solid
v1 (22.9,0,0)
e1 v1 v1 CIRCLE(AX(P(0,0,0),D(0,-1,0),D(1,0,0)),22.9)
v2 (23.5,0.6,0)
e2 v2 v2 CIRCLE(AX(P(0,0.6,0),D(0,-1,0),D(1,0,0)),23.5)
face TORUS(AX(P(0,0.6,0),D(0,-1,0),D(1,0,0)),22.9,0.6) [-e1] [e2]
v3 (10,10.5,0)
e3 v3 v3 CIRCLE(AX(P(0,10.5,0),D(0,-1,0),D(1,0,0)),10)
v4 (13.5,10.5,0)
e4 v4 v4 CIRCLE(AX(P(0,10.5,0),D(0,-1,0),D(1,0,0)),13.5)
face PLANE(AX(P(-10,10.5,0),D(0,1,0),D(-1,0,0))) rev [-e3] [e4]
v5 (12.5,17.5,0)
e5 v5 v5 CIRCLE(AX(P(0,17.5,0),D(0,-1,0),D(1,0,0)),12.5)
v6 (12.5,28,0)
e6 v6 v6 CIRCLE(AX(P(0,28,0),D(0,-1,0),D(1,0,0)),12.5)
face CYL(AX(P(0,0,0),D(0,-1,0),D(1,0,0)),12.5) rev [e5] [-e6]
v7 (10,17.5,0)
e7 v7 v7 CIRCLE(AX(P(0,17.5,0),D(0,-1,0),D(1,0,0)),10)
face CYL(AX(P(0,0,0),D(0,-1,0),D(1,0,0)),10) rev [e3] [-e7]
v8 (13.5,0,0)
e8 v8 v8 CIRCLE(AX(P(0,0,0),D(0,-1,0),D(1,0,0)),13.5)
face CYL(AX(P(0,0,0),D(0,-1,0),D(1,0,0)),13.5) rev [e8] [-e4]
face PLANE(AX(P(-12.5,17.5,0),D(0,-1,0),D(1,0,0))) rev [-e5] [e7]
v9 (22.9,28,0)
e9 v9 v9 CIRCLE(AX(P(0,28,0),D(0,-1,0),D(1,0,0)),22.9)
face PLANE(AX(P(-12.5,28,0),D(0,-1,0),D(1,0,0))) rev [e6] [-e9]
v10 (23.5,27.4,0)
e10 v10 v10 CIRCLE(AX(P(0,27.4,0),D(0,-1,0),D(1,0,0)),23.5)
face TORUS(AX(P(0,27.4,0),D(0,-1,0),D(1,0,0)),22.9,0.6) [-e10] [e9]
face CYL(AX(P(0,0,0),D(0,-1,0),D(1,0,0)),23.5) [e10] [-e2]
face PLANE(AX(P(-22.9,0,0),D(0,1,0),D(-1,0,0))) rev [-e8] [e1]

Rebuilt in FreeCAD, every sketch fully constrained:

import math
import FreeCAD as App
import Part
import Sketcher

V = App.Vector

doc = App.newDocument("Part")
body = doc.addObject("PartDesign::Body", "Body")

sketch1 = doc.addObject("Sketcher::SketchObject", "Sketch")
body.addObject(sketch1)
sketch1.AttachmentSupport = (doc.XY_Plane, [""])
sketch1.MapMode = "FlatFace"
sketch1.addGeometry([
    Part.LineSegment(V(-12.5, 28, 0), V(-22.9, 28, 0)),
    Part.ArcOfCircle(Part.Circle(V(-22.9, 27.4, 0), V(0, 0, 1), 0.6), math.radians(90), math.radians(180)),
    Part.LineSegment(V(-23.5, 27.4, 0), V(-23.5, 0.6, 0)),
    Part.ArcOfCircle(Part.Circle(V(-22.9, 0.6, 0), V(0, 0, 1), 0.6), math.radians(180), math.radians(270)),
    Part.LineSegment(V(-22.9, 0, 0), V(-13.5, 0, 0)),
    Part.LineSegment(V(-13.5, 0, 0), V(-13.5, 10.5, 0)),
    Part.LineSegment(V(-13.5, 10.5, 0), V(-10, 10.5, 0)),
    Part.LineSegment(V(-10, 10.5, 0), V(-10, 17.5, 0)),
    Part.LineSegment(V(-10, 17.5, 0), V(-12.5, 17.5, 0)),
    Part.LineSegment(V(-12.5, 17.5, 0), V(-12.5, 28, 0)),
], False)
sketch1.addConstraint([
    Sketcher.Constraint("Tangent", 0, 2, 1, 1),
    Sketcher.Constraint("Tangent", 1, 2, 2, 1),
    Sketcher.Constraint("Tangent", 2, 2, 3, 1),
    Sketcher.Constraint("Tangent", 3, 2, 4, 1),
    Sketcher.Constraint("Coincident", 4, 2, 5, 1),
    Sketcher.Constraint("Coincident", 5, 2, 6, 1),
    Sketcher.Constraint("Coincident", 6, 2, 7, 1),
    Sketcher.Constraint("Coincident", 7, 2, 8, 1),
    Sketcher.Constraint("Coincident", 8, 2, 9, 1),
    Sketcher.Constraint("Coincident", 9, 2, 0, 1),
    Sketcher.Constraint("Horizontal", 0),
    Sketcher.Constraint("Vertical", 2),
    Sketcher.Constraint("Horizontal", 4),
    Sketcher.Constraint("Vertical", 5),
    Sketcher.Constraint("Horizontal", 6),
    Sketcher.Constraint("Vertical", 7),
    Sketcher.Constraint("Horizontal", 8),
    Sketcher.Constraint("Vertical", 9),
    Sketcher.Constraint("Equal", 1, 3),
    Sketcher.Constraint("PointOnObject", 3, 2, -1),
    Sketcher.Constraint("Equal", 5, 9),
    Sketcher.Constraint("Radius", 1, 0.6),
    Sketcher.Constraint("DistanceY", 7, 1, 7, 2, 7.0),
    Sketcher.Constraint("DistanceX", 0, 2, 0, 1, 10.4),
    Sketcher.Constraint("DistanceX", 4, 1, 4, 2, 9.4),
    Sketcher.Constraint("DistanceX", 6, 1, 6, 2, 3.5),
    Sketcher.Constraint("DistanceY", 2, 2, 2, 1, 26.8),
    Sketcher.Constraint("DistanceX", 6, 2, -1, 1, 10.0),
])
revolution = doc.addObject("PartDesign::Revolution", "Revolution")
body.addObject(revolution)
revolution.Profile = sketch1
revolution.ReferenceAxis = (sketch1, ["V_Axis"])
revolution.Angle = 360

doc.recompute()
